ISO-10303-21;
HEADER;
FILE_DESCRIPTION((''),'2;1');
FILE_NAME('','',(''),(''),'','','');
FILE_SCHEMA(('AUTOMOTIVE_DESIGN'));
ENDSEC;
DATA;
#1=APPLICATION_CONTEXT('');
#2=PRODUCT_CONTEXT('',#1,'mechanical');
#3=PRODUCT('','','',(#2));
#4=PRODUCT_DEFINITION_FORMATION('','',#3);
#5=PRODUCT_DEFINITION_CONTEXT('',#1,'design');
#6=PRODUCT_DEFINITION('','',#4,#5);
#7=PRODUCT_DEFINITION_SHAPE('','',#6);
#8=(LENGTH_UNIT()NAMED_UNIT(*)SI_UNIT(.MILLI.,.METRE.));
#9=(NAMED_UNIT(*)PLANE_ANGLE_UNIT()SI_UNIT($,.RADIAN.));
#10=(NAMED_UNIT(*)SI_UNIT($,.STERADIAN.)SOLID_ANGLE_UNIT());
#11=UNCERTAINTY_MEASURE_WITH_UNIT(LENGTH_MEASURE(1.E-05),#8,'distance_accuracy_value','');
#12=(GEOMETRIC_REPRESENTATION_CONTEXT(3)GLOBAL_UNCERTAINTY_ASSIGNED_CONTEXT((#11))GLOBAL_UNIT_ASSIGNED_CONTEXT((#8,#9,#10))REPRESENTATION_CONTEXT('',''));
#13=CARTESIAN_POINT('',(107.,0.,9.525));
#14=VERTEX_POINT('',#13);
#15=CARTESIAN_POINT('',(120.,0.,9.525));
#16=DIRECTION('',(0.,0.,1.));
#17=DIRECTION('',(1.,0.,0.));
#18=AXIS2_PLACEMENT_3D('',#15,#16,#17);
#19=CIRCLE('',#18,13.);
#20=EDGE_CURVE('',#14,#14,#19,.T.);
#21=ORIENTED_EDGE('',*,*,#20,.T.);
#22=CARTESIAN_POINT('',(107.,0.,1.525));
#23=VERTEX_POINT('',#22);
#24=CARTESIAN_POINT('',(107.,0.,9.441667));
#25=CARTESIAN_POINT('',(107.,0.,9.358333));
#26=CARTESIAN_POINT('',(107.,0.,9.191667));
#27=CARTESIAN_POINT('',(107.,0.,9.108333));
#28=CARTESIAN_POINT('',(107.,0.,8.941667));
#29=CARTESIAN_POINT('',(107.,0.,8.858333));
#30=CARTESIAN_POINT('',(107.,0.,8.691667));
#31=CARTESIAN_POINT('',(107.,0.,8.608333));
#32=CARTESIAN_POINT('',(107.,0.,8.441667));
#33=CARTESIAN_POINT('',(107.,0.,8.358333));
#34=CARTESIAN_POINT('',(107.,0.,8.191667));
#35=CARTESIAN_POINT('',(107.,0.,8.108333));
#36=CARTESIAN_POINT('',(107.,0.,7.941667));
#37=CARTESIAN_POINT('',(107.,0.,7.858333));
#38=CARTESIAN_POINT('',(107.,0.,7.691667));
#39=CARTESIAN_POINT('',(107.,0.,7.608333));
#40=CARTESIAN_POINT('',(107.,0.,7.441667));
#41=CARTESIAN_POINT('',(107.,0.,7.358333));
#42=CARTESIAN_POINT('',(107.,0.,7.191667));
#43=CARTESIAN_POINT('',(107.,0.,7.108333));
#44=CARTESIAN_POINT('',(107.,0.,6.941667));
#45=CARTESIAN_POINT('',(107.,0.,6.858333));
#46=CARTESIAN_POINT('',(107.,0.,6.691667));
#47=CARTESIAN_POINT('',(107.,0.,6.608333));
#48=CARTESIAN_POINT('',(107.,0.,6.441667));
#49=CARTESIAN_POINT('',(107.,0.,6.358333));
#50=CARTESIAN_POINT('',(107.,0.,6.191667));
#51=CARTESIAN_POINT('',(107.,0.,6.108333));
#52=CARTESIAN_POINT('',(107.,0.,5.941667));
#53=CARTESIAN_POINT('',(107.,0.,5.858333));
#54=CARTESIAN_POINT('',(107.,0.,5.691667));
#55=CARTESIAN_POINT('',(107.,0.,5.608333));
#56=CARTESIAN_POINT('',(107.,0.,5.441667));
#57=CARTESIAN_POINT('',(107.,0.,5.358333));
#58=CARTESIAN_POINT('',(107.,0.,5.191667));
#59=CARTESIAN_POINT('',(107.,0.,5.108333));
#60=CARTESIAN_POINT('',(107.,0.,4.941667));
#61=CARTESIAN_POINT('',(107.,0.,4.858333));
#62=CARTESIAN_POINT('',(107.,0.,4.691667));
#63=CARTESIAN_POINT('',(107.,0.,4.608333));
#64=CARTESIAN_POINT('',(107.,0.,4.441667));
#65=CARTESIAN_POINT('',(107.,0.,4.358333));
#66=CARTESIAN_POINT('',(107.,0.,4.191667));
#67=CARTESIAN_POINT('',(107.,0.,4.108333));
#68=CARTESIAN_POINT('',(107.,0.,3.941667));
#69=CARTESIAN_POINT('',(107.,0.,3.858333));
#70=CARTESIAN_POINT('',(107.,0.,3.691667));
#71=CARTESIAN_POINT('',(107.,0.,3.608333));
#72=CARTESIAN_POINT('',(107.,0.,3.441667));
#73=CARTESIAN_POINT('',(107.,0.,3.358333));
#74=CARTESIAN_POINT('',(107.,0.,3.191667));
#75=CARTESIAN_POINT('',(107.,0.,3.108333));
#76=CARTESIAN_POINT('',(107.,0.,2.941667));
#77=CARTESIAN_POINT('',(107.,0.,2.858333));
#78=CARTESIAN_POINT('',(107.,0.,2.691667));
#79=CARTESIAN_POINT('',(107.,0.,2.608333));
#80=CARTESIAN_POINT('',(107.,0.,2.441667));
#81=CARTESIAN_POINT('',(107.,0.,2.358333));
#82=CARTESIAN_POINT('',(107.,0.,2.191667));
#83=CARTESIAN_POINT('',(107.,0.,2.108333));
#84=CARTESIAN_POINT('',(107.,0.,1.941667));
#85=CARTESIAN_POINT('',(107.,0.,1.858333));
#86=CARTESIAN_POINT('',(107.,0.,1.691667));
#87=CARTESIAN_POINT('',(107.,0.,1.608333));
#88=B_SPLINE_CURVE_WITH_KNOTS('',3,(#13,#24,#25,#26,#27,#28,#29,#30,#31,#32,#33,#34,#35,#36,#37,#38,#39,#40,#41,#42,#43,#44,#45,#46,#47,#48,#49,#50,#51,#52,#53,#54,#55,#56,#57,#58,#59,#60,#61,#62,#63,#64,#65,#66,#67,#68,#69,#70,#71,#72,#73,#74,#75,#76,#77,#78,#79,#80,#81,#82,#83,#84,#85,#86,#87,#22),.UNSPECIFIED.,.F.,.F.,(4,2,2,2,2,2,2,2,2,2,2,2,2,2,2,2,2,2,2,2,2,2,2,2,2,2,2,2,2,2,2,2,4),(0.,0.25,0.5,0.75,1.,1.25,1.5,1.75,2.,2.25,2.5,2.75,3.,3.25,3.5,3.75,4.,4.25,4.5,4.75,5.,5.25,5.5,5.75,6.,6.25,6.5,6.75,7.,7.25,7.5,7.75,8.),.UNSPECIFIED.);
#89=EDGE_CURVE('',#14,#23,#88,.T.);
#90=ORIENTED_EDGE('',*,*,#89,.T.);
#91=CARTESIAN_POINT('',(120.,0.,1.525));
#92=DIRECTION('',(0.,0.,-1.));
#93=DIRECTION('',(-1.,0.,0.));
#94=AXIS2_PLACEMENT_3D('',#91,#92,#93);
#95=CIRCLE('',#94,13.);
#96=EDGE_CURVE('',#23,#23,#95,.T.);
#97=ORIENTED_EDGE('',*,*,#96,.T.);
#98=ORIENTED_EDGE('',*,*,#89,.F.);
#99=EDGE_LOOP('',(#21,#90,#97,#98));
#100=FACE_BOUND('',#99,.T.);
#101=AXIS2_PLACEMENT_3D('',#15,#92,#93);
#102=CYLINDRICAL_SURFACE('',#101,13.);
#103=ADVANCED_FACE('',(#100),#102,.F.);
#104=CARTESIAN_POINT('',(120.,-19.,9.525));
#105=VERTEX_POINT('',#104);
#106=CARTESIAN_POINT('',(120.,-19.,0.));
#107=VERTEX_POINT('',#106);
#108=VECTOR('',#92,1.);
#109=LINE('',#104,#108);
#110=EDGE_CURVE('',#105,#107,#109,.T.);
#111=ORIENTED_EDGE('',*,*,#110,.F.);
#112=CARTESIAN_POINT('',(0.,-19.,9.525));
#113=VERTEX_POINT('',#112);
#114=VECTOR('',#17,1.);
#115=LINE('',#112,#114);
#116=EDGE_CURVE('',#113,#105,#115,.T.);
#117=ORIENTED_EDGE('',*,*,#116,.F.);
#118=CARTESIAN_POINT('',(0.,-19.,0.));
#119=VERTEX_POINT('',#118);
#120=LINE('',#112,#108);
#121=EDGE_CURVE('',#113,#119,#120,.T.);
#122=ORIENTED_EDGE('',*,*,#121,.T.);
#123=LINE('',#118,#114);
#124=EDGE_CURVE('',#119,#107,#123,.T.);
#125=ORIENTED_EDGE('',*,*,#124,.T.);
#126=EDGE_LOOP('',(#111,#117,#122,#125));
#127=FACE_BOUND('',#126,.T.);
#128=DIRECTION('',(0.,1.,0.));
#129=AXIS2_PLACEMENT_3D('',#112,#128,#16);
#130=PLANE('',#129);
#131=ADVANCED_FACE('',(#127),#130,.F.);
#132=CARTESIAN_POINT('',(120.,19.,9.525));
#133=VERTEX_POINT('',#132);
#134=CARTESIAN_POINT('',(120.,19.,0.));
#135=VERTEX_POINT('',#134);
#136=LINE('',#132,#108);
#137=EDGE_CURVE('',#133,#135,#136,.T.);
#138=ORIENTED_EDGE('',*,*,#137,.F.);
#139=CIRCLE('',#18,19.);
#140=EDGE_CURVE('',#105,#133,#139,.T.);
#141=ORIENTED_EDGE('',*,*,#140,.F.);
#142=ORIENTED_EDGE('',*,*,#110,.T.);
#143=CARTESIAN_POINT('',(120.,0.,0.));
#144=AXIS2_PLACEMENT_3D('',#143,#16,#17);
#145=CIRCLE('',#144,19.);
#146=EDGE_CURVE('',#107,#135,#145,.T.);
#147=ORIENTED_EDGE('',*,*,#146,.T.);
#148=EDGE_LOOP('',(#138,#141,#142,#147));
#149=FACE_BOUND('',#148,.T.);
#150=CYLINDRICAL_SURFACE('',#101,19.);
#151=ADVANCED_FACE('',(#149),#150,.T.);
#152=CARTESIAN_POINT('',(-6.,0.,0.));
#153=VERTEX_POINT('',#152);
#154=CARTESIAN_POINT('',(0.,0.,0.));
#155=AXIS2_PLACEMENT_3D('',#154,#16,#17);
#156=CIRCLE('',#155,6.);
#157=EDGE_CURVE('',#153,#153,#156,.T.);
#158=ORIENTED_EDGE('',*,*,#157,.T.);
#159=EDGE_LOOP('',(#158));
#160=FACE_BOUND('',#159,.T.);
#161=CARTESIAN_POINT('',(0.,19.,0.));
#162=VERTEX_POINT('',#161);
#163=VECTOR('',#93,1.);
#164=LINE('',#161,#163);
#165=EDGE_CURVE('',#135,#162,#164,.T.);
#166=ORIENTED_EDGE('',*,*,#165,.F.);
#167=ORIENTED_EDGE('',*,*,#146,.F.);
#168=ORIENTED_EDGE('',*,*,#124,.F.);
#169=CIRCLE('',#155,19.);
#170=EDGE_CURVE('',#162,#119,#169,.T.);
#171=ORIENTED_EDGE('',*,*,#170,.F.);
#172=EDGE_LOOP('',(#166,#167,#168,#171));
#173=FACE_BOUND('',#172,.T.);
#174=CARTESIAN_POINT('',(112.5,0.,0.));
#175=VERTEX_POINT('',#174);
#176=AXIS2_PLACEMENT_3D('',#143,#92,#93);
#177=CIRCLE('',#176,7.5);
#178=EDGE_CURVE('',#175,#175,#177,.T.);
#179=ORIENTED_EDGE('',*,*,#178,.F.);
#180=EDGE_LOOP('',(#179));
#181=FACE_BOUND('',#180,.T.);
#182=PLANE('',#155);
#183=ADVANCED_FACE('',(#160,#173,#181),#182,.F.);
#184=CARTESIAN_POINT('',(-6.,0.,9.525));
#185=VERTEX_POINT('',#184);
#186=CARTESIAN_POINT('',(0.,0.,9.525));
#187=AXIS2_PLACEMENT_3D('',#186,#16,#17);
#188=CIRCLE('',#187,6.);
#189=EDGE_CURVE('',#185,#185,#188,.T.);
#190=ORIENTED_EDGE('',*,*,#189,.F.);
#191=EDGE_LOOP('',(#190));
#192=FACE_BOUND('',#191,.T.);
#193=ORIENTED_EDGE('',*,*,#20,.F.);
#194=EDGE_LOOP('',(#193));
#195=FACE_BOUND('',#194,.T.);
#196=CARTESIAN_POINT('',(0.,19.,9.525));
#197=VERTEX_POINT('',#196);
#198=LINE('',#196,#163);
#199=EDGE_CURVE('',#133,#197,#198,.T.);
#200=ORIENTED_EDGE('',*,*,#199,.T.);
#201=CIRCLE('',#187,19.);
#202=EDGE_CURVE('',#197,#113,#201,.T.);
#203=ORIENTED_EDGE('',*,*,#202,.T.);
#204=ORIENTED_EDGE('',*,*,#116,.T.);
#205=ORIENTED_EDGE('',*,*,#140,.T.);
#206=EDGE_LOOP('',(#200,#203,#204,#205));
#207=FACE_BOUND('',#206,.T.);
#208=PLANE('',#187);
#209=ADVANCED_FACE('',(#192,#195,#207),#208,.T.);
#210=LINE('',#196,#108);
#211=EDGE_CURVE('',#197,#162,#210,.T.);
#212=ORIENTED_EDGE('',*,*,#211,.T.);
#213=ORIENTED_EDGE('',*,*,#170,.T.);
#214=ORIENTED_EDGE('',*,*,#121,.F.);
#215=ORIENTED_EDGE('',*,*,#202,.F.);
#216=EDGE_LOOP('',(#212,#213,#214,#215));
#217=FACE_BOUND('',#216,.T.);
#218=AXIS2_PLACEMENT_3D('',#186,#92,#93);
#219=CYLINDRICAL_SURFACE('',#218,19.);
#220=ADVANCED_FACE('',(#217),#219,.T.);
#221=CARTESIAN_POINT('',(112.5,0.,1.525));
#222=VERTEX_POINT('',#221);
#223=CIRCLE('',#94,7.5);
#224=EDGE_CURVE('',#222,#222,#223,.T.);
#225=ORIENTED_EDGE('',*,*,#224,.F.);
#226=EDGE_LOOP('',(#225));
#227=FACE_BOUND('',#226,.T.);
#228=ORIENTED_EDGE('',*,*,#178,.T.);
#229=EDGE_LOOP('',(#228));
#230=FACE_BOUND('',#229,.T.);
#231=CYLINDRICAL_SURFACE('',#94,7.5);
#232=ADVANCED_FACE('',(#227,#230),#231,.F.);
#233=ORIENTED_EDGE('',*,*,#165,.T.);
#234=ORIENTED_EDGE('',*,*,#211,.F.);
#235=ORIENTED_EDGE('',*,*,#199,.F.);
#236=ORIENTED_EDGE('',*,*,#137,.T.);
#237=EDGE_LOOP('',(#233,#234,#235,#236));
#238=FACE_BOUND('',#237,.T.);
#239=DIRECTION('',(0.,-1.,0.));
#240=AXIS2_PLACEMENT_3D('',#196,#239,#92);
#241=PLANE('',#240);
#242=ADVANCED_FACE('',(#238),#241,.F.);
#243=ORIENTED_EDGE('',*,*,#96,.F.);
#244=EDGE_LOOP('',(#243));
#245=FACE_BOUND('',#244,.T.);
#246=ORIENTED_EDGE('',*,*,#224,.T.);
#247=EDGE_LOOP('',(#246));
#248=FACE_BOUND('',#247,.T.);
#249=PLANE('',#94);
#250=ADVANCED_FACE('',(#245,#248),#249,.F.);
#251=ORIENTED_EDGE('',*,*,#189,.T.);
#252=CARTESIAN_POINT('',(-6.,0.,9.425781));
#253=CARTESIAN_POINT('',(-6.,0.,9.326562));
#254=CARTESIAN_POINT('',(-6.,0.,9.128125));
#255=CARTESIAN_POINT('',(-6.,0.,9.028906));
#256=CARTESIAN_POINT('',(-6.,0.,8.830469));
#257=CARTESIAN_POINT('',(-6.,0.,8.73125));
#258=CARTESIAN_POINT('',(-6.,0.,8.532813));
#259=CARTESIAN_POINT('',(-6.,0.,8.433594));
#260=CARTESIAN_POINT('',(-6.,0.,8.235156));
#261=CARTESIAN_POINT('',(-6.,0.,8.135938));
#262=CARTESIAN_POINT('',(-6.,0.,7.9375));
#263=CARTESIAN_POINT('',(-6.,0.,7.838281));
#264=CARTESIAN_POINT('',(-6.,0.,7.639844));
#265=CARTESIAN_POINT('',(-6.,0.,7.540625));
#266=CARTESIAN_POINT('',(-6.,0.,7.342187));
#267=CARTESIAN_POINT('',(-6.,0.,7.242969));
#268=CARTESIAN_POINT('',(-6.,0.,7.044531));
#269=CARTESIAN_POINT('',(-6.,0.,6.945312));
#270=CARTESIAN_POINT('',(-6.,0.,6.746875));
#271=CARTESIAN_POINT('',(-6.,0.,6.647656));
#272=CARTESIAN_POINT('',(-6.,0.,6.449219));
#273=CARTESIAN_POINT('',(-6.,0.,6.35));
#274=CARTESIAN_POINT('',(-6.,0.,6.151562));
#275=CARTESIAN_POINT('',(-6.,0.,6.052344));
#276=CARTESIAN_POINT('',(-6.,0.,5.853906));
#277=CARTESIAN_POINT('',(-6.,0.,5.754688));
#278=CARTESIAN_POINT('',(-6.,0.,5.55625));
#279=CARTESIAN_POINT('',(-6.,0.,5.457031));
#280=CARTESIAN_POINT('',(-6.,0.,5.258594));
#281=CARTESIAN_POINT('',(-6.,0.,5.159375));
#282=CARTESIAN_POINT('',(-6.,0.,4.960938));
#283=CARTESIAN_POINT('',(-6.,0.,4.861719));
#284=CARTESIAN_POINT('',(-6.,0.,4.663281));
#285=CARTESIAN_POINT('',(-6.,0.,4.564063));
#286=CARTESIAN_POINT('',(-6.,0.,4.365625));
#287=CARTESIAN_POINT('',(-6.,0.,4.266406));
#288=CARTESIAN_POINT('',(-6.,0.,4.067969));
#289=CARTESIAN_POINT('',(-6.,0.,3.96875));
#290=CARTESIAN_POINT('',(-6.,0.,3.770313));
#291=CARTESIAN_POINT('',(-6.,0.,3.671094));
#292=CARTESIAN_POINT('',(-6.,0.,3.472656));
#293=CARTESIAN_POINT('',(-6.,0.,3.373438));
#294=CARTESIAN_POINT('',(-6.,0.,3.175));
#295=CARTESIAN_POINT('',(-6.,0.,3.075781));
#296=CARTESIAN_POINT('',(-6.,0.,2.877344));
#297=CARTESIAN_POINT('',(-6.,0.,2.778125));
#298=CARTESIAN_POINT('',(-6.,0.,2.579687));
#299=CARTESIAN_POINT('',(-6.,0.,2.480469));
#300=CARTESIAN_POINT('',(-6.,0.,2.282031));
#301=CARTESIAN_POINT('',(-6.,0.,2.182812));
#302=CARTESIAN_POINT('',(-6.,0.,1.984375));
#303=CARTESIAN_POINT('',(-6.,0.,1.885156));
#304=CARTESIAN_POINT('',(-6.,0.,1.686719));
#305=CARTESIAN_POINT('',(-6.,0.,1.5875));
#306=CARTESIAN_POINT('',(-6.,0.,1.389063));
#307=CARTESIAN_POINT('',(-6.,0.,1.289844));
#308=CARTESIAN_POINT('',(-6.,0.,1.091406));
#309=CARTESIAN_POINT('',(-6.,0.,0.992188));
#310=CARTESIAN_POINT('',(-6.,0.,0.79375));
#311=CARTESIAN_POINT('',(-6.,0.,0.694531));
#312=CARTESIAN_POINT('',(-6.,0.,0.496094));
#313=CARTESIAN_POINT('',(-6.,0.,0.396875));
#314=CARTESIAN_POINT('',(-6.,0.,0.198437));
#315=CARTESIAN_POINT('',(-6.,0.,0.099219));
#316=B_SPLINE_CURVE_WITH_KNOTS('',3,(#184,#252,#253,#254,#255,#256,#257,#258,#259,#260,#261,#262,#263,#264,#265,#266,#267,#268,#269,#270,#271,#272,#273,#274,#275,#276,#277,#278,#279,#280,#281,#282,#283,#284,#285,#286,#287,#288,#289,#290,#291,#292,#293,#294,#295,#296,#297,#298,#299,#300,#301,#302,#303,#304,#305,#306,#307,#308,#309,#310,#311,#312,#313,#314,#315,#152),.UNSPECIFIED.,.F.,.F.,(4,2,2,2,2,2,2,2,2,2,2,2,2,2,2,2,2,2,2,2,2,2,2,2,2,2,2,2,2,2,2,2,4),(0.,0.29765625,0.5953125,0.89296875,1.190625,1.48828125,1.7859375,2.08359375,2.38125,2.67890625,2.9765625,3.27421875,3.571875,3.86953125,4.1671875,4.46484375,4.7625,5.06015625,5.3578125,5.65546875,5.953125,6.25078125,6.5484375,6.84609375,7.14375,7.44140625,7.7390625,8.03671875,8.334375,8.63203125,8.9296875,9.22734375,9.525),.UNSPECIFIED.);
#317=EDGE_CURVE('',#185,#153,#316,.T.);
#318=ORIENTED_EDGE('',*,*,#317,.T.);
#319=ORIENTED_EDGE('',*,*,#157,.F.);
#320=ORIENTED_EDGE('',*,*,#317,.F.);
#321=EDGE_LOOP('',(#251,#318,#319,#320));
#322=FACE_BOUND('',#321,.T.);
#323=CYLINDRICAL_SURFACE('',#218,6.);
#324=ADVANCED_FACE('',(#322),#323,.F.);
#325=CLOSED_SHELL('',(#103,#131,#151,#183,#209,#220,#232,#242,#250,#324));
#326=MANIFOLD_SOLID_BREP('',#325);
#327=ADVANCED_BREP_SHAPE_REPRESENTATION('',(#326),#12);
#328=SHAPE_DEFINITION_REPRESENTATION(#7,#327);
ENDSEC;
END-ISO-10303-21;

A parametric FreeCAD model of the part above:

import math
import FreeCAD as App
import Part
import Sketcher

V = App.Vector
Q = App.Units.Quantity

doc = App.newDocument("Part")
body = doc.addObject("PartDesign::Body", "Body")

# Sketch on XY plane
sketch1 = body.newObject("Sketcher::SketchObject", "Sketch")
sketch1.AttachmentSupport = (doc.getObject("XY_Plane"), [""])
sketch1.MapMode = "FlatFace"
sketch1.addGeometry([
    Part.LineSegment(V(120, 19, 0), V(0, 19, 0)),  # 0
    Part.ArcOfCircle(Part.Circle(V(0, 0, 0), V(0, 0, 1), 19), math.radians(90), math.radians(270)),  # 1
    Part.LineSegment(V(0, -19, 0), V(120, -19, 0)),  # 2
    Part.ArcOfCircle(Part.Circle(V(120, 0, 0), V(0, 0, 1), 19), math.radians(-90), math.radians(90)),  # 3
    Part.Circle(V(120, 0, 0), V(0, 0, 1), 13),  # 4
    Part.Circle(V(0, 0, 0), V(0, 0, 1), 6),  # 5
], False)
sketch1.addConstraint([
    Sketcher.Constraint("Tangent", 0, 2, 1, 1),
    Sketcher.Constraint("Tangent", 1, 2, 2, 1),
    Sketcher.Constraint("Tangent", 2, 2, 3, 1),
    Sketcher.Constraint("Tangent", 3, 2, 0, 1),
    Sketcher.Constraint("Horizontal", 0),
    Sketcher.Constraint("Horizontal", 2),
    Sketcher.Constraint("Coincident", 1, 3, -1, 1),
    Sketcher.Constraint("Coincident", 5, 3, -1, 1),
    Sketcher.Constraint("Coincident", 4, 3, 3, 3),
    Sketcher.Constraint("Diameter", 4, Q("26 mm")),
    Sketcher.Constraint("Diameter", 5, Q("12 mm")),
    Sketcher.Constraint("Radius", 1, Q("19 mm")),
    Sketcher.Constraint("DistanceX", 0, 2, 0, 1, Q("120 mm")),
])
pad1 = body.newObject("PartDesign::Pad", "Pad")
pad1.Profile = sketch1
pad1.Length = 9.525

# Sketch on XY plane
sketch2 = body.newObject("Sketcher::SketchObject", "Sketch001")
sketch2.AttachmentSupport = (doc.getObject("XY_Plane"), [""])
sketch2.MapMode = "FlatFace"
sketch2.addGeometry([
    Part.Circle(V(120, 0, 0), V(0, 0, 1), 13),
    Part.Circle(V(120, 0, 0), V(0, 0, 1), 7.5),
], False)
sketch2.addConstraint([
    Sketcher.Constraint("Coincident", 1, 3, 0, 3),
    Sketcher.Constraint("PointOnObject", 0, 3, -1),
    Sketcher.Constraint("Diameter", 0, Q("26 mm")),
    Sketcher.Constraint("Diameter", 1, Q("15 mm")),
    Sketcher.Constraint("DistanceX", -1, 1, 0, 3, Q("120 mm")),
])
pad2 = body.newObject("PartDesign::Pad", "Pad001")
pad2.Profile = sketch2
pad2.Length = 1.525

doc.recompute()
